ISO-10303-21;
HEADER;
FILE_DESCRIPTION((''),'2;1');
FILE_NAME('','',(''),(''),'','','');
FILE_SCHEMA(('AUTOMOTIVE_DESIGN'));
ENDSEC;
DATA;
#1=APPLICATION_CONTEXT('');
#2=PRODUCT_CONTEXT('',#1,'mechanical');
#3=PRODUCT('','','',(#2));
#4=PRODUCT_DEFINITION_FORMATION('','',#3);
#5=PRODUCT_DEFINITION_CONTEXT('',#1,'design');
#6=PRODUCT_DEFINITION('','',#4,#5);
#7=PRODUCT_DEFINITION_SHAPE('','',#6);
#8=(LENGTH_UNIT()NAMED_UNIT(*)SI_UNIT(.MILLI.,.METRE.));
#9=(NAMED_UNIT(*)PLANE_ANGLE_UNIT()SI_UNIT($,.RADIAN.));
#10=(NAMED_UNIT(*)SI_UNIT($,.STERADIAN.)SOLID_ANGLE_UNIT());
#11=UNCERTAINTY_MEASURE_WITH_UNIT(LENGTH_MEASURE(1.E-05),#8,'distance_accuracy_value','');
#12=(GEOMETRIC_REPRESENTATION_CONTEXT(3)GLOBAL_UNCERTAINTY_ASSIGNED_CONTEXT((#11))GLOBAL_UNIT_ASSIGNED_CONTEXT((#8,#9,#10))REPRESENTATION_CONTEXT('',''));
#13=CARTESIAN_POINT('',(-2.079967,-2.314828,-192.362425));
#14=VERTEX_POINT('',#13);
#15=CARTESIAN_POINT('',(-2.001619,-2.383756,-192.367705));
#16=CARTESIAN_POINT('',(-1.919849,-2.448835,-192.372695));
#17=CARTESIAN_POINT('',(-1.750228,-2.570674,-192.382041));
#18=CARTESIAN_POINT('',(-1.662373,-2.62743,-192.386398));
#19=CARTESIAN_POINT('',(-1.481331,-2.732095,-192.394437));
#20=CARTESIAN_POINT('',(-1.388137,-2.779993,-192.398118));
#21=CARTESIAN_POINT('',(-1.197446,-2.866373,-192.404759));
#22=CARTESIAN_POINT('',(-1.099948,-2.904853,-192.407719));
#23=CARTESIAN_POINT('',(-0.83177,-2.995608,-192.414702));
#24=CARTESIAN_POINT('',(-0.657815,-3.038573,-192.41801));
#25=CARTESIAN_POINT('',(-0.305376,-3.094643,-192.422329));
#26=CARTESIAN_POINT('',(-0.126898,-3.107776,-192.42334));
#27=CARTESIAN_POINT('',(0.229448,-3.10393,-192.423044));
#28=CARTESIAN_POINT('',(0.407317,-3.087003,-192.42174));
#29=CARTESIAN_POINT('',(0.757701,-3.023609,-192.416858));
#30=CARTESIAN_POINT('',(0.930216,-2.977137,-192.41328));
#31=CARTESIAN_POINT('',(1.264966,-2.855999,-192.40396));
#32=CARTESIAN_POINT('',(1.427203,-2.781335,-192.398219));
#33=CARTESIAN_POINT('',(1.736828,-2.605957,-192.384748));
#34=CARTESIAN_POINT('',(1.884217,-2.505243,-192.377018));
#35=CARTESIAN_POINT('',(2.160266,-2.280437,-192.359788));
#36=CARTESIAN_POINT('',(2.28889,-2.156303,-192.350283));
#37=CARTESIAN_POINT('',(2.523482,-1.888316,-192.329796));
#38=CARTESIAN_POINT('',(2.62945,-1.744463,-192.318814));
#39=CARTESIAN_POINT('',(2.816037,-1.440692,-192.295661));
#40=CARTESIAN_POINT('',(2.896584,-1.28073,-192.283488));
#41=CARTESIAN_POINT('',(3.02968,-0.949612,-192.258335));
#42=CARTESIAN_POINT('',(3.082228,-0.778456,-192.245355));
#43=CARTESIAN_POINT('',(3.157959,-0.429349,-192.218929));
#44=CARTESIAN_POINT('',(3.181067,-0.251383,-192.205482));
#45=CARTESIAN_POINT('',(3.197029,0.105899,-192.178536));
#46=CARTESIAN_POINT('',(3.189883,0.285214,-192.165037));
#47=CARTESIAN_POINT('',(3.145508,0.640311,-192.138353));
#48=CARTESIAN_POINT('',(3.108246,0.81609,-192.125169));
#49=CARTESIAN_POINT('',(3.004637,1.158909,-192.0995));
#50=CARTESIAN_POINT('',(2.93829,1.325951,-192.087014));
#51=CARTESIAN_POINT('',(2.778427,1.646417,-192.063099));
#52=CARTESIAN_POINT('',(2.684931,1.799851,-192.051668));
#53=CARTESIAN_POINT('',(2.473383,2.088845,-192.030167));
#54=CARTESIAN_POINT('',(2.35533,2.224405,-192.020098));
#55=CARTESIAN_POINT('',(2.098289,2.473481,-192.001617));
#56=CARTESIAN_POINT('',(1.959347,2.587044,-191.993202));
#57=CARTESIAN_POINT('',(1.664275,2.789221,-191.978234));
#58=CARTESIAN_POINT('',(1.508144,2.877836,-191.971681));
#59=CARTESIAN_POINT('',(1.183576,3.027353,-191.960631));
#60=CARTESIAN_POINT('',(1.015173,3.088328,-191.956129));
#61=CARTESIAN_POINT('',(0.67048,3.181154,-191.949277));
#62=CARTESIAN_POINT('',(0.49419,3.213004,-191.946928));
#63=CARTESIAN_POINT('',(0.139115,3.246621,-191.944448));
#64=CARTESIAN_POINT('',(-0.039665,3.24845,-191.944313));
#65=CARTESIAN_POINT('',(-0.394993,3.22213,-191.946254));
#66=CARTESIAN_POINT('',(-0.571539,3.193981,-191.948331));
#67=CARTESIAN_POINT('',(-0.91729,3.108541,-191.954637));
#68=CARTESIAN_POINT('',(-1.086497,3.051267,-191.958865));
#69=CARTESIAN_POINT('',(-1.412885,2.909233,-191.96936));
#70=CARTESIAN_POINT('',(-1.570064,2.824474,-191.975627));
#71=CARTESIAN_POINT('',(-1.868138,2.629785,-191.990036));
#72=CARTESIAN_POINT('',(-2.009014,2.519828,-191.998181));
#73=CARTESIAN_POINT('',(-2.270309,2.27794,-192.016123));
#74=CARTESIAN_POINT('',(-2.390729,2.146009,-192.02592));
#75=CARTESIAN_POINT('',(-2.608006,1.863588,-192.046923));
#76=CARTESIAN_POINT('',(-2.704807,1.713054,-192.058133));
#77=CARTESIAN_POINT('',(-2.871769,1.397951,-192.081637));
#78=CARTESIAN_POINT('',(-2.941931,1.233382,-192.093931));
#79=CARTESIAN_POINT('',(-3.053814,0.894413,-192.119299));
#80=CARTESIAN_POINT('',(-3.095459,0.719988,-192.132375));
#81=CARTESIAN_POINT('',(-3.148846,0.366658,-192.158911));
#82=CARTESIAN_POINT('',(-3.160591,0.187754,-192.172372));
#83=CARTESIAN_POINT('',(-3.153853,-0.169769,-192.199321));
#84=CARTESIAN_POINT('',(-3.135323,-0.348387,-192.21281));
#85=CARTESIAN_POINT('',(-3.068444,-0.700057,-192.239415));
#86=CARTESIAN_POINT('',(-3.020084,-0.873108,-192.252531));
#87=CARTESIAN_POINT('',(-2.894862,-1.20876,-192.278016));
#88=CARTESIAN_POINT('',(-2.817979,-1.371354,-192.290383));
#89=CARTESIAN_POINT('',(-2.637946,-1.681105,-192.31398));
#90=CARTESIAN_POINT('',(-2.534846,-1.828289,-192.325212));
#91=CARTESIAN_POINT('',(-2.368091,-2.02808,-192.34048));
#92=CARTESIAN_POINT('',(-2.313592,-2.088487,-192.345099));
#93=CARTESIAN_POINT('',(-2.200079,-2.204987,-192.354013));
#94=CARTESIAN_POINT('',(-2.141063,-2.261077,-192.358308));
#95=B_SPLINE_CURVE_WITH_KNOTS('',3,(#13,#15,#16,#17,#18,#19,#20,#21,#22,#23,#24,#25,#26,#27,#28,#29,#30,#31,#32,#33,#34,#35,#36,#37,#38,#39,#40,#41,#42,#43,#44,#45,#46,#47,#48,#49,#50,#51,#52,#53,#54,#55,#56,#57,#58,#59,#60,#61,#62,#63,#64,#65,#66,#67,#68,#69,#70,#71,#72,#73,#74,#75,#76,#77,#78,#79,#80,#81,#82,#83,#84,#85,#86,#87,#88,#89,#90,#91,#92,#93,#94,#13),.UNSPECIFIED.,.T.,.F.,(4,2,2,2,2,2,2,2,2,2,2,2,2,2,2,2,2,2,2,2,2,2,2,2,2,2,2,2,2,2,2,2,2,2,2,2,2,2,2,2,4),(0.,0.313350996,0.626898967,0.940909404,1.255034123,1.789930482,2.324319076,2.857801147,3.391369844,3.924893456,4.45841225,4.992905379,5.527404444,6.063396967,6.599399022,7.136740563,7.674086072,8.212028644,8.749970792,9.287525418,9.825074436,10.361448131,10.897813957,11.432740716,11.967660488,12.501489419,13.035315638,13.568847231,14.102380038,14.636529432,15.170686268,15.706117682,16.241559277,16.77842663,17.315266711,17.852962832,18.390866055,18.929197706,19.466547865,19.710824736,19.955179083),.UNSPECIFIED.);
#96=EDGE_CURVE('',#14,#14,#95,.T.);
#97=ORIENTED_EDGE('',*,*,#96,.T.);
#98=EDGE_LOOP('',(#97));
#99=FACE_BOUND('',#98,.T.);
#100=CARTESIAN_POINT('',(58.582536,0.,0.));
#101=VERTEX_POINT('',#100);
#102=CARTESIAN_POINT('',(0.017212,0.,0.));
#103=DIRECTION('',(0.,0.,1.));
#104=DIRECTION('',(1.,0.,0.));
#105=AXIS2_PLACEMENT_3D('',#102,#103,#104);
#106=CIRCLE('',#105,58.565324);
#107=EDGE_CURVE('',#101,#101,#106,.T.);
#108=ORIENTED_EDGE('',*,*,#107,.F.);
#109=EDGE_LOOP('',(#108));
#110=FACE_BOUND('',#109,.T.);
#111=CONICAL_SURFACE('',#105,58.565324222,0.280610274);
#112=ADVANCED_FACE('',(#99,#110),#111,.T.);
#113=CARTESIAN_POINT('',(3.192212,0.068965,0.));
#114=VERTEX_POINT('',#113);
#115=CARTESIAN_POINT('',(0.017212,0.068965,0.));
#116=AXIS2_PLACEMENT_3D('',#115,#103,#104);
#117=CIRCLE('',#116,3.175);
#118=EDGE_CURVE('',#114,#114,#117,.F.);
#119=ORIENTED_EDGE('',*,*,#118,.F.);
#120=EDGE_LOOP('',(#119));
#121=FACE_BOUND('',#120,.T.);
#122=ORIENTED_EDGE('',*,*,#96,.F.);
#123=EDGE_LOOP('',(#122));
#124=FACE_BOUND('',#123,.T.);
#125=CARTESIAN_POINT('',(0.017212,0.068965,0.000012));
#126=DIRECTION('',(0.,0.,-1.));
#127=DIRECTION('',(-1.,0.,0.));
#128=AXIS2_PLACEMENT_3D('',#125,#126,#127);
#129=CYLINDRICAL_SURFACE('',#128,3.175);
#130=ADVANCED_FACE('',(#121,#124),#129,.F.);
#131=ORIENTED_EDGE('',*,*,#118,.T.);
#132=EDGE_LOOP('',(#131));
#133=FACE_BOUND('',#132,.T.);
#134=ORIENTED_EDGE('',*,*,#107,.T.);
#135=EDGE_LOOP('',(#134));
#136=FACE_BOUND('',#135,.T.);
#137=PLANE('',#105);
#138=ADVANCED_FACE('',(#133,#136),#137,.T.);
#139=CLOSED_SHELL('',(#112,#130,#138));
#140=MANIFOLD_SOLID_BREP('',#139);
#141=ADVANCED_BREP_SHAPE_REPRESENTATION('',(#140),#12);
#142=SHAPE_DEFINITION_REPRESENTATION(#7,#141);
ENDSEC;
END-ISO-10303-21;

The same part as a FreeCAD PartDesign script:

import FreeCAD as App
import Part
import Sketcher

V = App.Vector
Q = App.Units.Quantity


def add_polygon(sketch, points):
    """Adds a closed chain of lines whose ends are joined by coincident constraints."""
    first, n = sketch.GeometryCount, len(points)
    for a, b in zip(points, points[1:] + points[:1]):
        sketch.addGeometry(Part.LineSegment(App.Vector(*a, 0), App.Vector(*b, 0)), False)
    for i in range(n):
        sketch.addConstraint(Sketcher.Constraint("Coincident", first + i, 2, first + (i + 1) % n, 1))

doc = App.newDocument("Part")
params = doc.addObject("Spreadsheet::Sheet", "Params")
for row, (alias, value) in enumerate([
    ("sketch1_height", "8 in"),
    ("revolution_angle", "360 deg"),
    ("sketch2_diameter", "0.25 in"),
], start=1):
    params.set(f"A{row}", alias)
    params.set(f"B{row}", "=" + value)
    params.setAlias(f"B{row}", alias)

body = doc.addObject("PartDesign::Body", "Body")

sketch1 = body.newObject("Sketcher::SketchObject", "Sketch")
sketch1.AttachmentSupport = (doc.getObject("XZ_Plane"), [""])
sketch1.MapMode = "FlatFace"
add_polygon(sketch1, [(0.017212, -203.2), (0.017212, 0), (58.582536, 0)])
sketch1.addGeometry(Part.LineSegment(V(0.017212, 0, 0), V(0.017212, -203.2, 0)), True)
sketch1.addConstraint([
    Sketcher.Constraint("Vertical", 0),
    Sketcher.Constraint("Horizontal", 1),
    Sketcher.Constraint("Vertical", 3),
    Sketcher.Constraint("Coincident", 3, 1, 0, 2),
    Sketcher.Constraint("PointOnObject", 0, 2, -1),
    Sketcher.Constraint("Equal", 0, 3),
    Sketcher.Constraint("DistanceY", 0, 1, 0, 2, Q("8 in")),
    Sketcher.Constraint("DistanceX", 1, 1, 1, 2, 58.565324),
    Sketcher.Constraint("DistanceX", -1, 1, 0, 2, 0.017212),
])
sketch1.setExpression("Constraints[9]", "Params.sketch1_height")
revolution = body.newObject("PartDesign::Revolution", "Revolution")
revolution.Profile = sketch1
revolution.ReferenceAxis = (sketch1, ["Axis0"])
revolution.setExpression("Angle", "Params.revolution_angle")

sketch2 = body.newObject("Sketcher::SketchObject", "Sketch001")
sketch2.AttachmentSupport = (doc.getObject("XY_Plane"), [""])
sketch2.MapMode = "FlatFace"
sketch2.addGeometry(Part.Circle(V(0.017212, 0.068965, 0), V(0, 0, 1), 3.175), False)
sketch2.addConstraint([
    Sketcher.Constraint("Diameter", 0, Q("0.25 in")),
    Sketcher.Constraint("DistanceX", -1, 1, 0, 3, 0.017212),
    Sketcher.Constraint("DistanceY", -1, 1, 0, 3, 0.068965),
])
sketch2.setExpression("Constraints[0]", "Params.sketch2_diameter")
pocket1 = body.newObject("PartDesign::Pocket", "Pocket")
pocket1.Profile = sketch2
pocket1.Type = "ThroughAll"
pocket1.Midplane = True

doc.recompute()
